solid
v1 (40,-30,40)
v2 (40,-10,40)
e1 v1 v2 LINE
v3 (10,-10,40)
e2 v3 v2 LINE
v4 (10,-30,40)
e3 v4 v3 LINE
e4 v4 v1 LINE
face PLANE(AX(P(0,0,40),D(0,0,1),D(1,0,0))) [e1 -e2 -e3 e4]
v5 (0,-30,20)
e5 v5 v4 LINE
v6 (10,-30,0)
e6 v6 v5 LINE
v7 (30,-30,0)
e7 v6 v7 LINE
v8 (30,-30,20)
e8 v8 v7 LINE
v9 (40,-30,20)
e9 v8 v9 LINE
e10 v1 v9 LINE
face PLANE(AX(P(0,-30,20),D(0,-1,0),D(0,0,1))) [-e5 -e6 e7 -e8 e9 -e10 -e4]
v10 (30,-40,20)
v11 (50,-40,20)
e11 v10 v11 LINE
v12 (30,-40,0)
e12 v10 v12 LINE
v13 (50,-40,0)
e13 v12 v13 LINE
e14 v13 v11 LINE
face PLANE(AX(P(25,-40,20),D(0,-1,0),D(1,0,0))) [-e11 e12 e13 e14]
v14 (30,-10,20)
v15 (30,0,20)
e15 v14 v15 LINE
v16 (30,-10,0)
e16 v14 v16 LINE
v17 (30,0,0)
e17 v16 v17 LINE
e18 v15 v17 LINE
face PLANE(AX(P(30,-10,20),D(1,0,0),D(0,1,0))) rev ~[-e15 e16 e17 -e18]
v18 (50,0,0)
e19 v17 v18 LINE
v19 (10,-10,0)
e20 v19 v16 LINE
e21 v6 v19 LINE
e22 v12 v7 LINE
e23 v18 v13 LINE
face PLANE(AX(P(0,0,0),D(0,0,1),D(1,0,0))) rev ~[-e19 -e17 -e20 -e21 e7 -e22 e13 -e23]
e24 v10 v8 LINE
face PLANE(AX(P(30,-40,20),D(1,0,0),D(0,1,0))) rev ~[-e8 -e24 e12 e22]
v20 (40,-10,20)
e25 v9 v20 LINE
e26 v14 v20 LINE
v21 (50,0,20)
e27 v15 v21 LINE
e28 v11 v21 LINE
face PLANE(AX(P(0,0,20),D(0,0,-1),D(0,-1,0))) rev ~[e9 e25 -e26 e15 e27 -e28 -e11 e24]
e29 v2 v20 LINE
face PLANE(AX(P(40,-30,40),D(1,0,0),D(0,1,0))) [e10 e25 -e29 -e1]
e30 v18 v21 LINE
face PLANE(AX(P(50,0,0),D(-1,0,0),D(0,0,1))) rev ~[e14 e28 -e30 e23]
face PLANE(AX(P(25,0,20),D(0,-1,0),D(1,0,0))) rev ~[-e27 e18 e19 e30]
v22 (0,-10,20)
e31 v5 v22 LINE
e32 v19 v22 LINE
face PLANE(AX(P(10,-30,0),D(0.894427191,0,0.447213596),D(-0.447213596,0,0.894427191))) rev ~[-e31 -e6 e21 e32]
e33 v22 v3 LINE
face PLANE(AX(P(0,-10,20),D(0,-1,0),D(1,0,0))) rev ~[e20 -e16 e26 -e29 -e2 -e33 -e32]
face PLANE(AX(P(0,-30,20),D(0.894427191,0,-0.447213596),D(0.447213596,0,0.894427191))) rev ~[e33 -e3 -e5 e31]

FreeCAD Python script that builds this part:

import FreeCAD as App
import Part
import Sketcher


def add_polygon(sketch, points):
    """Adds a closed chain of lines whose ends are joined by coincident constraints."""
    first, n = sketch.GeometryCount, len(points)
    for a, b in zip(points, points[1:] + points[:1]):
        sketch.addGeometry(Part.LineSegment(App.Vector(*a, 0), App.Vector(*b, 0)), False)
    for i in range(n):
        sketch.addConstraint(Sketcher.Constraint("Coincident", first + i, 2, first + (i + 1) % n, 1))

doc = App.newDocument("Part")
body = doc.addObject("PartDesign::Body", "Body")

# Sketch on XZ plane
sketch1 = body.newObject("Sketcher::SketchObject", "Sketch")
sketch1.AttachmentSupport = (doc.getObject("XZ_Plane"), [""])
sketch1.MapMode = "FlatFace"
add_polygon(sketch1, [(0, 40), (0, 0), (50, 0), (50, 40)])  # lines 0-3
sketch1.addConstraint([
    Sketcher.Constraint("Vertical", 0),
    Sketcher.Constraint("Horizontal", 1),
    Sketcher.Constraint("Vertical", 2),
    Sketcher.Constraint("Horizontal", 3),
    Sketcher.Constraint("Coincident", 0, 2, -1, 1),
    Sketcher.Constraint("DistanceX", 1, 1, 1, 2, 50.0),
    Sketcher.Constraint("DistanceY", 0, 2, 0, 1, 40.0),
])
pad1 = body.newObject("PartDesign::Pad", "Pad")
pad1.Profile = sketch1
pad1.Length = 40

# Sketch on YZ plane
sketch2 = body.newObject("Sketcher::SketchObject", "Sketch001")
sketch2.AttachmentSupport = (doc.getObject("YZ_Plane"), [""])
sketch2.MapMode = "FlatFace"
add_polygon(sketch2, [(0, 40), (0, 20), (-10, 20), (-10, 40)])  # lines 0-3
add_polygon(sketch2, [(-30, 40), (-30, 20), (-40, 20), (-40, 40)])  # lines 4-7
sketch2.addConstraint([
    Sketcher.Constraint("Vertical", 0),
    Sketcher.Constraint("Horizontal", 1),
    Sketcher.Constraint("Vertical", 2),
    Sketcher.Constraint("Horizontal", 3),
    Sketcher.Constraint("Vertical", 4),
    Sketcher.Constraint("Horizontal", 5),
    Sketcher.Constraint("Vertical", 6),
    Sketcher.Constraint("Horizontal", 7),
    Sketcher.Constraint("PointOnObject", 0, 2, -2),
    Sketcher.Constraint("Horizontal", 1, 2, 4, 2),
    Sketcher.Constraint("Horizontal", 3, 2, 6, 2),
    Sketcher.Constraint("Equal", 3, 5),
    Sketcher.Constraint("DistanceX", 1, 2, 1, 1, 10.0),
    Sketcher.Constraint("DistanceY", 0, 2, 0, 1, 20.0),
    Sketcher.Constraint("DistanceY", -1, 1, 0, 2, 20.0),
    Sketcher.Constraint("DistanceX", 4, 2, -1, 1, 30.0),
])
pocket1 = body.newObject("PartDesign::Pocket", "Pocket")
pocket1.Profile = sketch2
pocket1.Type = "ThroughAll"
pocket1.Reversed = True

# Sketch on XY plane
sketch3 = body.newObject("Sketcher::SketchObject", "Sketch002")
sketch3.AttachmentSupport = (doc.getObject("XY_Plane"), [""])
sketch3.MapMode = "FlatFace"
sketch3.AttachmentOffset = App.Placement(App.Vector(0, 0, 20), App.Rotation())
add_polygon(sketch3, [(0, 0), (0, -10), (30, -10), (30, 0)])  # lines 0-3
add_polygon(sketch3, [(0, -30), (0, -40), (30, -40), (30, -30)])  # lines 4-7
sketch3.addConstraint([
    Sketcher.Constraint("Vertical", 0),
    Sketcher.Constraint("Horizontal", 1),
    Sketcher.Constraint("Vertical", 2),
    Sketcher.Constraint("Horizontal", 3),
    Sketcher.Constraint("Vertical", 4),
    Sketcher.Constraint("Horizontal", 5),
    Sketcher.Constraint("Vertical", 6),
    Sketcher.Constraint("Horizontal", 7),
    Sketcher.Constraint("Coincident", 3, 2, -1, 1),
    Sketcher.Constraint("PointOnObject", 4, 2, -2),
    Sketcher.Constraint("Vertical", 2, 2, 5, 2),
    Sketcher.Constraint("Equal", 2, 4),
    Sketcher.Constraint("DistanceX", 1, 1, 1, 2, 30.0),
    Sketcher.Constraint("DistanceY", 0, 2, 0, 1, 10.0),
    Sketcher.Constraint("DistanceY", 4, 2, -1, 1, 40.0),
])
pocket2 = body.newObject("PartDesign::Pocket", "Pocket001")
pocket2.Profile = sketch3
pocket2.Type = "ThroughAll"

# Sketch on XY plane
sketch4 = body.newObject("Sketcher::SketchObject", "Sketch003")
sketch4.AttachmentSupport = (doc.getObject("XY_Plane"), [""])
sketch4.MapMode = "FlatFace"
sketch4.AttachmentOffset = App.Placement(App.Vector(0, 0, 40), App.Rotation())
add_polygon(sketch4, [(40, -10), (40, -30), (50, -30), (50, -10)])  # lines 0-3
sketch4.addConstraint([
    Sketcher.Constraint("Vertical", 0),
    Sketcher.Constraint("Horizontal", 1),
    Sketcher.Constraint("Vertical", 2),
    Sketcher.Constraint("Horizontal", 3),
    Sketcher.Constraint("DistanceX", 1, 1, 1, 2, 10.0),
    Sketcher.Constraint("DistanceY", 0, 2, 0, 1, 20.0),
    Sketcher.Constraint("DistanceX", -1, 1, 0, 2, 40.0),
    Sketcher.Constraint("DistanceY", 0, 2, -1, 1, 30.0),
])
pocket3 = body.newObject("PartDesign::Pocket", "Pocket002")
pocket3.Profile = sketch4
pocket3.Length = 20

# Sketch on XZ plane
sketch5 = body.newObject("Sketcher::SketchObject", "Sketch004")
sketch5.AttachmentSupport = (doc.getObject("XZ_Plane"), [""])
sketch5.MapMode = "FlatFace"
sketch5.AttachmentOffset = App.Placement(App.Vector(0, 0, 30), App.Rotation())
add_polygon(sketch5, [(10, 40), (0, 40), (0, 20)])  # lines 0-2
sketch5.addConstraint([
    Sketcher.Constraint("Horizontal", 0),
    Sketcher.Constraint("Vertical", 1),
    Sketcher.Constraint("PointOnObject", 0, 2, -2),
    Sketcher.Constraint("DistanceX", 0, 2, 0, 1, 10.0),
    Sketcher.Constraint("DistanceY", 1, 2, 1, 1, 20.0),
    Sketcher.Constraint("DistanceY", -1, 1, 0, 2, 40.0),
])
pocket4 = body.newObject("PartDesign::Pocket", "Pocket003")
pocket4.Profile = sketch5
pocket4.Type = "ThroughAll"

# Sketch on XZ plane
sketch6 = body.newObject("Sketcher::SketchObject", "Sketch005")
sketch6.AttachmentSupport = (doc.getObject("XZ_Plane"), [""])
sketch6.MapMode = "FlatFace"
sketch6.AttachmentOffset = App.Placement(App.Vector(0, 0, 30), App.Rotation())
add_polygon(sketch6, [(10, 0), (0, 20), (0, 0)])  # lines 0-2
sketch6.addConstraint([
    Sketcher.Constraint("Vertical", 1),
    Sketcher.Constraint("Horizontal", 2),
    Sketcher.Constraint("Coincident", 1, 2, -1, 1),
    Sketcher.Constraint("DistanceX", 2, 1, 2, 2, 10.0),
    Sketcher.Constraint("DistanceY", 1, 2, 1, 1, 20.0),
])
pocket5 = body.newObject("PartDesign::Pocket", "Pocket004")
pocket5.Profile = sketch6
pocket5.Type = "ThroughAll"

doc.recompute()
